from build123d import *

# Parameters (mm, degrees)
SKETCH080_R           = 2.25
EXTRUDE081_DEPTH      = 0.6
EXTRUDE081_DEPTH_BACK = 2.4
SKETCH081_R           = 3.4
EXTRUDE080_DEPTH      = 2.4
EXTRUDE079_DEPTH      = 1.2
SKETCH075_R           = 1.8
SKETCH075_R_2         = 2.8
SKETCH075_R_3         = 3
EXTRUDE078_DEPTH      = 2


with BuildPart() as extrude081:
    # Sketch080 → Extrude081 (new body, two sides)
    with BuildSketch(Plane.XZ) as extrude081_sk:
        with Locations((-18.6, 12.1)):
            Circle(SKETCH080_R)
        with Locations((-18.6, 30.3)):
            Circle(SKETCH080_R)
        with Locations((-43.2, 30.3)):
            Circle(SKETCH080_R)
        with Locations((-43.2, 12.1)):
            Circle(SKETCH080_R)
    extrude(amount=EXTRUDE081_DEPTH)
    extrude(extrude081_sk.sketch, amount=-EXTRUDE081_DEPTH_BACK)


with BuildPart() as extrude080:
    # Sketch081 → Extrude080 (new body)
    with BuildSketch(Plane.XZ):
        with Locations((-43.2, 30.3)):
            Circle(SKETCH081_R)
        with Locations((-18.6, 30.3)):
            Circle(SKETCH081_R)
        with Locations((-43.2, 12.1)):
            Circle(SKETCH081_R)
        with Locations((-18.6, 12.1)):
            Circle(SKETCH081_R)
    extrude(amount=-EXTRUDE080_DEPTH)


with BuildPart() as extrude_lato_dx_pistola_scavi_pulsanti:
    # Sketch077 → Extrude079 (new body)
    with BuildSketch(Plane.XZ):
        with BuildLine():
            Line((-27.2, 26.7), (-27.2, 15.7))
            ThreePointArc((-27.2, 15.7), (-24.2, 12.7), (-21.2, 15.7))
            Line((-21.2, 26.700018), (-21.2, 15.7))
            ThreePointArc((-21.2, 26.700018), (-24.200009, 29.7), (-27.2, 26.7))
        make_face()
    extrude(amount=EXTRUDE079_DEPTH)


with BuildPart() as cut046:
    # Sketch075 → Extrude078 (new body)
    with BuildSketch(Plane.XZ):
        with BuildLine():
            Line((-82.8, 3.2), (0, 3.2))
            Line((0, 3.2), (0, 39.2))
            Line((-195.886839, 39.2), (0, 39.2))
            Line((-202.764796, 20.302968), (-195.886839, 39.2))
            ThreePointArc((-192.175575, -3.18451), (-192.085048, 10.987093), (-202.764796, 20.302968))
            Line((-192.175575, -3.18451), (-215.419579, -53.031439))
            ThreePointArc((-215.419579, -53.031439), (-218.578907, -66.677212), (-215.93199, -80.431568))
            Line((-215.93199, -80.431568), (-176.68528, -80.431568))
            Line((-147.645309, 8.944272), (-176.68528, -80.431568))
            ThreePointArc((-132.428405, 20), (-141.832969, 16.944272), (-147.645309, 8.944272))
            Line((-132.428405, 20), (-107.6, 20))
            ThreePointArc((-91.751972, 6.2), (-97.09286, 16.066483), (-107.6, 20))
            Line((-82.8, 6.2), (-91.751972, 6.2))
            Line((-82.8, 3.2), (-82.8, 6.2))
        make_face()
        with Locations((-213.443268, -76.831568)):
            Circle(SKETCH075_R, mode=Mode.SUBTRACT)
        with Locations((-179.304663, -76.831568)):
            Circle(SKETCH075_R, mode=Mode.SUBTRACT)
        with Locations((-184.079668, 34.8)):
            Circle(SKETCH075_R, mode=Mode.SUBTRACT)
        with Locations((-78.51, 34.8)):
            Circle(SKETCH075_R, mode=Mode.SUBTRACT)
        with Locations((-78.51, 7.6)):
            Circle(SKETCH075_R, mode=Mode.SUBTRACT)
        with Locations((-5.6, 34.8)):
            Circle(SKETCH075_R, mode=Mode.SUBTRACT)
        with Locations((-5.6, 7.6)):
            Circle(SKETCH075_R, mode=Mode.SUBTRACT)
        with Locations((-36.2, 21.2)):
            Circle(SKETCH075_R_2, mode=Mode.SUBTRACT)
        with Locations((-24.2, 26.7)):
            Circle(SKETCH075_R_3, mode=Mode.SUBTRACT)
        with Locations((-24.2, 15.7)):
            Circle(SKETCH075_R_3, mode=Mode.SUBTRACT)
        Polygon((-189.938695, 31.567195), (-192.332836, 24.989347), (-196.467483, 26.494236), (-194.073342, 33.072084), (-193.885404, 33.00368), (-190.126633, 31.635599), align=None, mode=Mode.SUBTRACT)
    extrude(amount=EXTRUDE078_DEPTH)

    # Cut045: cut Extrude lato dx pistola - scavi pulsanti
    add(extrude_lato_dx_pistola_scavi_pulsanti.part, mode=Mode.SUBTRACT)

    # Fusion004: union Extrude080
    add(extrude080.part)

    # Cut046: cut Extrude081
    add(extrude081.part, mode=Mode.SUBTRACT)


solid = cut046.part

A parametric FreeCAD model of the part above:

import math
import FreeCAD as App
import Part
import Sketcher

V = App.Vector
Q = App.Units.Quantity


def add_polygon(sketch, points):
    """Adds a closed chain of lines whose ends are joined by coincident constraints."""
    first, n = sketch.GeometryCount, len(points)
    for a, b in zip(points, points[1:] + points[:1]):
        sketch.addGeometry(Part.LineSegment(App.Vector(*a, 0), App.Vector(*b, 0)), False)
    for i in range(n):
        sketch.addConstraint(Sketcher.Constraint("Coincident", first + i, 2, first + (i + 1) % n, 1))

doc = App.newDocument("Part")
params = doc.addObject("Spreadsheet::Sheet", "Params")
for row, (alias, value) in enumerate([
    ("sketch1_diameter", "4.5 mm"),
    ("pad1_length", "0.6 mm"),
    ("pad1_length2", "2.4 mm"),
    ("sketch2_diameter", "6.8 mm"),
    ("pad2_length", "2.4 mm"),
    ("sketch3_radius", "3 mm"),
    ("sketch3_height", "11 mm"),
    ("pad3_length", "1.2 mm"),
    ("sketch4_diameter", "6 mm"),
    ("sketch4_radius", "16.999999 mm"),
    ("sketch4_radius2", "15.999999 mm"),
    ("sketch4_diameter2", "3.6 mm"),
    ("sketch4_diameter3", "5.6 mm"),
    ("pad4_length", "2 mm"),
], start=1):
    params.set(f"A{row}", alias)
    params.set(f"B{row}", "=" + value)
    params.setAlias(f"B{row}", alias)

body = doc.addObject("PartDesign::Body", "Body")
body.AllowCompound = True

sketch1 = body.newObject("Sketcher::SketchObject", "Sketch")
sketch1.AttachmentSupport = (doc.getObject("XZ_Plane"), [""])
sketch1.MapMode = "FlatFace"
sketch1.addGeometry(Part.Circle(V(-18.6, 12.1, 0), V(0, 0, 1), 2.2), False)
sketch1.addGeometry(Part.Circle(V(-18.6, 30.3, 0), V(0, 0, 1), 2.2), False)
sketch1.addGeometry(Part.Circle(V(-43.2, 30.3, 0), V(0, 0, 1), 2.2), False)
sketch1.addGeometry(Part.Circle(V(-43.2, 12.1, 0), V(0, 0, 1), 2.2), False)
sketch1.addConstraint(Sketcher.Constraint("Equal", 0, 1))
sketch1.addConstraint(Sketcher.Constraint("Equal", 1, 2))
sketch1.addConstraint(Sketcher.Constraint("Equal", 2, 3))
sketch1.addConstraint(Sketcher.Constraint("Horizontal", 1, 3, 2, 3))
sketch1.addConstraint(Sketcher.Constraint("Horizontal", 0, 3, 3, 3))
sketch1.addConstraint(Sketcher.Constraint("Vertical", 0, 3, 1, 3))
sketch1.addConstraint(Sketcher.Constraint("Vertical", 2, 3, 3, 3))
sketch1.addConstraint(Sketcher.Constraint("Diameter", 0, 4.5))
sketch1.addConstraint(Sketcher.Constraint("DistanceX", 0, 3, -1, 1, 18.6))
sketch1.addConstraint(Sketcher.Constraint("DistanceY", -1, 1, 0, 3, 12.1))
sketch1.addConstraint(Sketcher.Constraint("DistanceY", -1, 1, 1, 3, 30.3))
sketch1.addConstraint(Sketcher.Constraint("DistanceX", 2, 3, -1, 1, 43.2))
sketch1.setExpression("Constraints[7]", "Params.sketch1_diameter")
pad1 = body.newObject("PartDesign::Pad", "Pad")
pad1.Profile = sketch1
pad1.Type = "TwoLengths"
pad1.setExpression("Length", "Params.pad1_length")
pad1.setExpression("Length2", "Params.pad1_length2")
body2 = doc.addObject("PartDesign::Body", "Body001")
body2.AllowCompound = True

sketch2 = body2.newObject("Sketcher::SketchObject", "Sketch001")
sketch2.AttachmentSupport = (doc.getObject("XZ_Plane001"), [""])
sketch2.MapMode = "FlatFace"
sketch2.addGeometry(Part.Circle(V(-43.2, 30.3, 0), V(0, 0, 1), 3.4), False)
sketch2.addGeometry(Part.Circle(V(-18.6, 30.3, 0), V(0, 0, 1), 3.4), False)
sketch2.addGeometry(Part.Circle(V(-43.2, 12.1, 0), V(0, 0, 1), 3.4), False)
sketch2.addGeometry(Part.Circle(V(-18.6, 12.1, 0), V(0, 0, 1), 3.4), False)
sketch2.addConstraint(Sketcher.Constraint("Equal", 0, 1))
sketch2.addConstraint(Sketcher.Constraint("Equal", 1, 2))
sketch2.addConstraint(Sketcher.Constraint("Equal", 2, 3))
sketch2.addConstraint(Sketcher.Constraint("Horizontal", 0, 3, 1, 3))
sketch2.addConstraint(Sketcher.Constraint("Horizontal", 2, 3, 3, 3))
sketch2.addConstraint(Sketcher.Constraint("Vertical", 0, 3, 2, 3))
sketch2.addConstraint(Sketcher.Constraint("Vertical", 1, 3, 3, 3))
sketch2.addConstraint(Sketcher.Constraint("Diameter", 0, 6.8))
sketch2.addConstraint(Sketcher.Constraint("DistanceX", 0, 3, -1, 1, 43.2))
sketch2.addConstraint(Sketcher.Constraint("DistanceY", -1, 1, 0, 3, 30.3))
sketch2.addConstraint(Sketcher.Constraint("DistanceX", 1, 3, -1, 1, 18.6))
sketch2.addConstraint(Sketcher.Constraint("DistanceY", -1, 1, 2, 3, 12.1))
sketch2.setExpression("Constraints[7]", "Params.sketch2_diameter")
pad2 = body2.newObject("PartDesign::Pad", "Pad001")
pad2.Profile = sketch2
pad2.setExpression("Length", "Params.pad2_length")
pad2.Reversed = True
body3 = doc.addObject("PartDesign::Body", "Body002")

sketch3 = body3.newObject("Sketcher::SketchObject", "Sketch002")
sketch3.AttachmentSupport = (doc.getObject("XZ_Plane002"), [""])
sketch3.MapMode = "FlatFace"
sketch3.addGeometry(Part.LineSegment(V(-27.2, 26.7, 0), V(-27.2, 15.7, 0)), False)
sketch3.addGeometry(Part.ArcOfCircle(Part.Circle(V(-24.2, 15.7, 0), V(0, 0, 1), 3), math.radians(180), math.radians(360)), False)
sketch3.addGeometry(Part.LineSegment(V(-21.2, 15.7, 0), V(-21.2, 26.7, 0)), False)
sketch3.addGeometry(Part.ArcOfCircle(Part.Circle(V(-24.2, 26.7, 0), V(0, 0, 1), 3), math.radians(0), math.radians(180)), False)
sketch3.addConstraint(Sketcher.Constraint("Tangent", 0, 2, 1, 1))
sketch3.addConstraint(Sketcher.Constraint("Tangent", 1, 2, 2, 1))
sketch3.addConstraint(Sketcher.Constraint("Coincident", 2, 2, 3, 1))
sketch3.addConstraint(Sketcher.Constraint("Tangent", 3, 2, 0, 1))
sketch3.addConstraint(Sketcher.Constraint("Vertical", 0))
sketch3.addConstraint(Sketcher.Constraint("Vertical", 2))
sketch3.addConstraint(Sketcher.Constraint("Radius", 1, 3.0))
sketch3.addConstraint(Sketcher.Constraint("DistanceY", 0, 2, 0, 1, 11.0))
sketch3.addConstraint(Sketcher.Constraint("DistanceX", 1, 3, -1, 1, 24.2))
sketch3.addConstraint(Sketcher.Constraint("DistanceY", -1, 1, 1, 3, 15.7))
sketch3.addConstraint(Sketcher.Constraint("DistanceY", 2, 1, 2, 2, 11.000018))
sketch3.setExpression("Constraints[6]", "Params.sketch3_radius")
sketch3.setExpression("Constraints[7]", "Params.sketch3_height")
pad3 = body3.newObject("PartDesign::Pad", "Pad002")
pad3.Profile = sketch3
pad3.setExpression("Length", "Params.pad3_length")
body4 = doc.addObject("PartDesign::Body", "Body003")

sketch4 = body4.newObject("Sketcher::SketchObject", "Sketch003")
sketch4.AttachmentSupport = (doc.getObject("XZ_Plane003"), [""])
sketch4.MapMode = "FlatFace"
sketch4.addGeometry(Part.LineSegment(V(-82.8, 3.2, 0), V(0, 3.2, 0)), False)
sketch4.addGeometry(Part.LineSegment(V(0, 3.2, 0), V(0, 39.2, 0)), False)
sketch4.addGeometry(Part.LineSegment(V(0, 39.2, 0), V(-195.89, 39.2, 0)), False)
sketch4.addGeometry(Part.LineSegment(V(-195.89, 39.2, 0), V(-202.76, 20.3, 0)), False)
sketch4.addGeometry(Part.ArcOfCircle(Part.Circle(V(-207.58, 4, 0), V(0, 0, 1), 17), math.radians(-25), math.radians(74)), False)
sketch4.addGeometry(Part.LineSegment(V(-192.18, -3.18, 0), V(-215.42, -53.03, 0)), False)
sketch4.addGeometry(Part.ArcOfCircle(Part.Circle(V(-184.8, -67.31, 0), V(0, 0, 1), 33.78), math.radians(155), math.radians(203)), False)
sketch4.addGeometry(Part.LineSegment(V(-215.93, -80.43, 0), V(-176.69, -80.43, 0)), False)
sketch4.addGeometry(Part.LineSegment(V(-176.69, -80.43, 0), V(-147.65, 8.94, 0)), False)
sketch4.addGeometry(Part.ArcOfCircle(Part.Circle(V(-132.43, 4, 0), V(0, 0, 1), 16), math.radians(90), math.radians(162)), False)
sketch4.addGeometry(Part.LineSegment(V(-132.43, 20, 0), V(-107.6, 20, 0)), False)
sketch4.addGeometry(Part.ArcOfCircle(Part.Circle(V(-107.6, 4, 0), V(0, 0, 1), 16), math.radians(8), math.radians(90)), False)
sketch4.addGeometry(Part.LineSegment(V(-91.75, 6.2, 0), V(-82.8, 6.2, 0)), False)
sketch4.addGeometry(Part.LineSegment(V(-82.8, 6.2, 0), V(-82.8, 3.2, 0)), False)
sketch4.addGeometry(Part.Circle(V(-213.44, -76.83, 0), V(0, 0, 1), 1.8), False)
sketch4.addGeometry(Part.Circle(V(-179.3, -76.83, 0), V(0, 0, 1), 1.8), False)
add_polygon(sketch4, [(-190.13, 31.64), (-189.94, 31.57), (-192.33, 24.99), (-196.47, 26.49), (-194.07, 33.07), (-193.89, 33)])
sketch4.addGeometry(Part.Circle(V(-184.08, 34.8, 0), V(0, 0, 1), 1.8), False)
sketch4.addGeometry(Part.Circle(V(-78.51, 7.6, 0), V(0, 0, 1), 1.8), False)
sketch4.addGeometry(Part.Circle(V(-5.6, 7.6, 0), V(0, 0, 1), 1.8), False)
sketch4.addGeometry(Part.Circle(V(-78.51, 34.8, 0), V(0, 0, 1), 1.8), False)
sketch4.addGeometry(Part.Circle(V(-36.2, 21.2, 0), V(0, 0, 1), 2.8), False)
sketch4.addGeometry(Part.Circle(V(-24.2, 15.7, 0), V(0, 0, 1), 3), False)
sketch4.addGeometry(Part.Circle(V(-24.2, 26.7, 0), V(0, 0, 1), 3), False)
sketch4.addGeometry(Part.Circle(V(-5.6, 34.8, 0), V(0, 0, 1), 1.8), False)
sketch4.addConstraint(Sketcher.Constraint("Coincident", 0, 2, 1, 1))
sketch4.addConstraint(Sketcher.Constraint("Coincident", 1, 2, 2, 1))
sketch4.addConstraint(Sketcher.Constraint("Coincident", 2, 2, 3, 1))
sketch4.addConstraint(Sketcher.Constraint("Coincident", 3, 2, 4, 2))
sketch4.addConstraint(Sketcher.Constraint("Tangent", 4, 1, 5, 1))
sketch4.addConstraint(Sketcher.Constraint("Tangent", 5, 2, 6, 1))
sketch4.addConstraint(Sketcher.Constraint("Coincident", 6, 2, 7, 1))
sketch4.addConstraint(Sketcher.Constraint("Coincident", 7, 2, 8, 1))
sketch4.addConstraint(Sketcher.Constraint("Tangent", 8, 2, 9, 2))
sketch4.addConstraint(Sketcher.Constraint("Tangent", 9, 1, 10, 1))
sketch4.addConstraint(Sketcher.Constraint("Tangent", 10, 2, 11, 2))
sketch4.addConstraint(Sketcher.Constraint("Coincident", 11, 1, 12, 1))
sketch4.addConstraint(Sketcher.Constraint("Coincident", 12, 2, 13, 1))
sketch4.addConstraint(Sketcher.Constraint("Coincident", 13, 2, 0, 1))
sketch4.addConstraint(Sketcher.Constraint("Horizontal", 0))
sketch4.addConstraint(Sketcher.Constraint("Vertical", 1))
sketch4.addConstraint(Sketcher.Constraint("Horizontal", 2))
sketch4.addConstraint(Sketcher.Constraint("Horizontal", 7))
sketch4.addConstraint(Sketcher.Constraint("Horizontal", 10))
sketch4.addConstraint(Sketcher.Constraint("Horizontal", 12))
sketch4.addConstraint(Sketcher.Constraint("Vertical", 13))
sketch4.addConstraint(Sketcher.Constraint("Equal", 9, 11))
sketch4.addConstraint(Sketcher.Constraint("Equal", 14, 15))
sketch4.addConstraint(Sketcher.Constraint("Equal", 15, 22))
sketch4.addConstraint(Sketcher.Constraint("Equal", 22, 23))
sketch4.addConstraint(Sketcher.Constraint("Equal", 23, 24))
sketch4.addConstraint(Sketcher.Constraint("Equal", 24, 25))
sketch4.addConstraint(Sketcher.Constraint("Equal", 27, 28))
sketch4.addConstraint(Sketcher.Constraint("Equal", 25, 29))
sketch4.addConstraint(Sketcher.Constraint("PointOnObject", 0, 2, -2))
sketch4.addConstraint(Sketcher.Constraint("Perpendicular", 3, 16))
sketch4.addConstraint(Sketcher.Constraint("Perpendicular", 16, 17))
sketch4.addConstraint(Sketcher.Constraint("Perpendicular", 17, 18))
sketch4.addConstraint(Sketcher.Constraint("Perpendicular", 18, 19))
sketch4.addConstraint(Sketcher.Constraint("Perpendicular", 19, 20))
sketch4.addConstraint(Sketcher.Constraint("Parallel", 20, 21))
sketch4.addConstraint(Sketcher.Constraint("Horizontal", 4, 3, 9, 3))
sketch4.addConstraint(Sketcher.Constraint("Horizontal", 14, 3, 15, 3))
sketch4.addConstraint(Sketcher.Constraint("Horizontal", 23, 3, 24, 3))
sketch4.addConstraint(Sketcher.Constraint("Horizontal", 22, 3, 25, 3))
sketch4.addConstraint(Sketcher.Constraint("Horizontal", 25, 3, 29, 3))
sketch4.addConstraint(Sketcher.Constraint("Vertical", 23, 3, 25, 3))
sketch4.addConstraint(Sketcher.Constraint("Vertical", 27, 3, 28, 3))
sketch4.addConstraint(Sketcher.Constraint("Vertical", 24, 3, 29, 3))
sketch4.addConstraint(Sketcher.Constraint("Equal", 16, 20))
sketch4.addConstraint(Sketcher.Constraint("Diameter", 27, 6.0))
sketch4.addConstraint(Sketcher.Constraint("Radius", 4, 16.999999))
sketch4.addConstraint(Sketcher.Constraint("Radius", 9, 15.999999))
sketch4.addConstraint(Sketcher.Constraint("Diameter", 14, 3.6))
sketch4.addConstraint(Sketcher.Constraint("Diameter", 26, 5.6))
sketch4.addConstraint(Sketcher.Constraint("DistanceY", 1, 1, 1, 2, 36.0))
sketch4.addConstraint(Sketcher.Constraint("DistanceY", 13, 2, 13, 1, 3.0))
sketch4.addConstraint(Sketcher.Constraint("Angle", 3, Q("-110 deg")))
sketch4.addConstraint(Sketcher.Constraint("Angle", 5, Q("-114.999999 deg")))
sketch4.addConstraint(Sketcher.Constraint("Angle", 8, Q("72 deg")))
sketch4.addConstraint(Sketcher.Constraint("Distance", 5, 55.0))
sketch4.addConstraint(Sketcher.Constraint("Distance", 17, 7.0))
sketch4.addConstraint(Sketcher.Constraint("Distance", 21, 4.000001))
sketch4.addConstraint(Sketcher.Constraint("DistanceX", 0, 1, 0, 2, 82.8))
sketch4.addConstraint(Sketcher.Constraint("DistanceY", -1, 1, 4, 3, 4.000001))
sketch4.addConstraint(Sketcher.Constraint("DistanceX", 11, 3, 24, 3, 102.0))
sketch4.addConstraint(Sketcher.Constraint("DistanceX", 26, 3, 27, 3, 12.0))
sketch4.addConstraint(Sketcher.Constraint("DistanceY", 27, 3, 28, 3, 11.0))
sketch4.addConstraint(Sketcher.Constraint("DistanceY", 0, 2, 26, 3, 18.0))
sketch4.addConstraint(Sketcher.Constraint("Distance", 16, 0.199999))
sketch4.addConstraint(Sketcher.Constraint("DistanceX", 11, 3, -1, 1, 107.6))
sketch4.addConstraint(Sketcher.Constraint("DistanceY", -1, 1, 22, 3, 34.8))
sketch4.addConstraint(Sketcher.Constraint("DistanceY", -1, 1, 23, 3, 7.6))
sketch4.addConstraint(Sketcher.Constraint("DistanceX", 26, 3, -1, 1, 36.2))
sketch4.addConstraint(Sketcher.Constraint("DistanceY", -1, 1, 26, 3, 21.2))
sketch4.addConstraint(Sketcher.Constraint("DistanceY", -1, 1, 27, 3, 15.7))
sketch4.addConstraint(Sketcher.Constraint("DistanceY", 6, 2, 14, 3, 3.6))
sketch4.addConstraint(Sketcher.Constraint("DistanceX", 23, 3, -1, 1, 78.51))
sketch4.addConstraint(Sketcher.Constraint("Radius", 6, 33.783311))
sketch4.addConstraint(Sketcher.Constraint("Distance", 3, 20.109801))
sketch4.addConstraint(Sketcher.Constraint("DistanceX", 2, 2, 2, 1, 195.886839))
sketch4.addConstraint(Sketcher.Constraint("DistanceX", 7, 1, 7, 2, 39.24671))
sketch4.addConstraint(Sketcher.Constraint("DistanceY", -1, 1, 21, 2, 31.635599))
sketch4.addConstraint(Sketcher.Constraint("DistanceX", 4, 3, 9, 3, 75.154401))
sketch4.addConstraint(Sketcher.Constraint("DistanceX", 3, 2, 16, 2, 12.826101))
sketch4.addConstraint(Sketcher.Constraint("DistanceX", 22, 3, -1, 1, 184.079668))
sketch4.addConstraint(Sketcher.Constraint("DistanceX", 14, 3, 4, 3, 5.860462))
sketch4.addConstraint(Sketcher.Constraint("DistanceX", 6, 3, 15, 3, 5.496839))
sketch4.setExpression("Constraints[51]", "Params.sketch4_diameter")
sketch4.setExpression("Constraints[52]", "Params.sketch4_radius")
sketch4.setExpression("Constraints[53]", "Params.sketch4_radius2")
sketch4.setExpression("Constraints[54]", "Params.sketch4_diameter2")
sketch4.setExpression("Constraints[55]", "Params.sketch4_diameter3")
pad4 = body4.newObject("PartDesign::Pad", "Pad003")
pad4.Profile = sketch4
pad4.setExpression("Length", "Params.pad4_length")
doc.recompute()

boolean = body4.newObject("PartDesign::Boolean", "Boolean")
boolean.Type = "Cut"
boolean.addObjects([body3])
doc.recompute()

boolean2 = body4.newObject("PartDesign::Boolean", "Boolean001")
boolean2.Type = "Fuse"
boolean2.addObjects([body2])
doc.recompute()

boolean3 = body4.newObject("PartDesign::Boolean", "Boolean002")
boolean3.Type = "Cut"
boolean3.addObjects([body])

doc.recompute()
